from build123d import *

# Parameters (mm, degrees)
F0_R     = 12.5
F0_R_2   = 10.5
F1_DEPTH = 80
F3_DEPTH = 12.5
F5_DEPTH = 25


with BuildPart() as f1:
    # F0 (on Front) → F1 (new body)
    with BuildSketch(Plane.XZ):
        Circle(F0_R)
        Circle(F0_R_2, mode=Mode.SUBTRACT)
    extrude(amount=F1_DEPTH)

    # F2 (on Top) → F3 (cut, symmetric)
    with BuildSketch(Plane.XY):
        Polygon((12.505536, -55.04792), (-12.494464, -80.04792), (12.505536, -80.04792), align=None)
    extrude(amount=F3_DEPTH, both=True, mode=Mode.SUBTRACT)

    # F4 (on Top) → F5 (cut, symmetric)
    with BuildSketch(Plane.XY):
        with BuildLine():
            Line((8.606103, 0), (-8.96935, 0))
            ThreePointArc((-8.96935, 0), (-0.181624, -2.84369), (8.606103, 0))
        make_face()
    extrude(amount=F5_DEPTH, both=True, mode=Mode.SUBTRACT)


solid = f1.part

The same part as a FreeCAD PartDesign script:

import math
import FreeCAD as App
import Part
import Sketcher
Q = App.Units.Quantity

doc = App.newDocument("Part")
params = doc.addObject("Spreadsheet::Sheet", "Params")
for row, (alias, value) in enumerate([
    ("sketch1_diameter", "25 mm"),
    ("sketch1_diameter2", "21 mm"),
    ("pad1_length", "80 mm"),
    ("sketch2_width", "25 mm"),
    ("pocket1_length", "25 mm"),
    ("sketch3_radius", "15.000002 mm"),
    ("pocket2_length", "50 mm"),
], start=1):
    params.set(f"A{row}", alias)
    params.set(f"B{row}", "=" + value)
    params.setAlias(f"B{row}", alias)

body = doc.addObject("PartDesign::Body", "Body")

sketch1 = body.newObject("Sketcher::SketchObject", "Sketch")
sketch1.AttachmentSupport = (doc.getObject("XZ_Plane"), [""])
sketch1.MapMode = "FlatFace"
sketch1.addGeometry([
    Part.Circle(App.Vector(0, 0, 0), App.Vector(0, 0, 1), 12),
    Part.Circle(App.Vector(0, 0, 0), App.Vector(0, 0, 1), 10),
], False)
sketch1.addConstraint([
    Sketcher.Constraint("Coincident", 0, 3, -1, 1),
    Sketcher.Constraint("Coincident", 1, 3, -1, 1),
    Sketcher.Constraint("Diameter", 0, Q("25 mm")),
    Sketcher.Constraint("Diameter", 1, Q("21 mm")),
])
sketch1.setExpression("Constraints[2]", "Params.sketch1_diameter")
sketch1.setExpression("Constraints[3]", "Params.sketch1_diameter2")
pad1 = body.newObject("PartDesign::Pad", "Pad")
pad1.Profile = sketch1
pad1.setExpression("Length", "Params.pad1_length")

sketch2 = body.newObject("Sketcher::SketchObject", "Sketch001")
sketch2.AttachmentSupport = (doc.getObject("XY_Plane"), [""])
sketch2.MapMode = "FlatFace"
sketch2.addGeometry([
    Part.LineSegment(App.Vector(13, -55, 0), App.Vector(-12, -80, 0)),
    Part.LineSegment(App.Vector(-12, -80, 0), App.Vector(13, -80, 0)),
    Part.LineSegment(App.Vector(13, -80, 0), App.Vector(13, -55, 0)),
], False)
sketch2.addConstraint([
    Sketcher.Constraint("Coincident", 0, 2, 1, 1),
    Sketcher.Constraint("Coincident", 1, 2, 2, 1),
    Sketcher.Constraint("Coincident", 2, 2, 0, 1),
    Sketcher.Constraint("Horizontal", 1),
    Sketcher.Constraint("Vertical", 2),
    Sketcher.Constraint("Equal", 1, 2),
    Sketcher.Constraint("DistanceX", 1, 1, 1, 2, Q("25 mm")),
    Sketcher.Constraint("DistanceY", 0, 2, -1, 1, Q("80.04792 mm")),
    Sketcher.Constraint("DistanceX", 0, 2, -1, 1, Q("12.494464 mm")),
])
sketch2.setExpression("Constraints[6]", "Params.sketch2_width")
pocket1 = body.newObject("PartDesign::Pocket", "Pocket")
pocket1.Profile = sketch2
pocket1.setExpression("Length", "Params.pocket1_length")
pocket1.Midplane = True

sketch3 = body.newObject("Sketcher::SketchObject", "Sketch002")
sketch3.AttachmentSupport = (doc.getObject("XY_Plane"), [""])
sketch3.MapMode = "FlatFace"
sketch3.addGeometry([
    Part.LineSegment(App.Vector(9, 0, 0), App.Vector(-9, 0, 0)),
    Part.ArcOfCircle(Part.Circle(App.Vector(0, 12, 0), App.Vector(0, 0, 1), 15), math.radians(-126), math.radians(-54)),
], False)
sketch3.addConstraint([
    Sketcher.Constraint("Coincident", 0, 1, 1, 2),
    Sketcher.Constraint("Coincident", 1, 1, 0, 2),
    Sketcher.Constraint("Horizontal", 0),
    Sketcher.Constraint("PointOnObject", 0, 1, -1),
    Sketcher.Constraint("Radius", 1, Q("15.000002 mm")),
    Sketcher.Constraint("DistanceX", 0, 2, 0, 1, Q("17.575453 mm")),
    Sketcher.Constraint("DistanceX", 1, 1, -1, 1, Q("8.96935 mm")),
])
sketch3.setExpression("Constraints[4]", "Params.sketch3_radius")
pocket2 = body.newObject("PartDesign::Pocket", "Pocket001")
pocket2.Profile = sketch3
pocket2.setExpression("Length", "Params.pocket2_length")
pocket2.Midplane = True

doc.recompute()
